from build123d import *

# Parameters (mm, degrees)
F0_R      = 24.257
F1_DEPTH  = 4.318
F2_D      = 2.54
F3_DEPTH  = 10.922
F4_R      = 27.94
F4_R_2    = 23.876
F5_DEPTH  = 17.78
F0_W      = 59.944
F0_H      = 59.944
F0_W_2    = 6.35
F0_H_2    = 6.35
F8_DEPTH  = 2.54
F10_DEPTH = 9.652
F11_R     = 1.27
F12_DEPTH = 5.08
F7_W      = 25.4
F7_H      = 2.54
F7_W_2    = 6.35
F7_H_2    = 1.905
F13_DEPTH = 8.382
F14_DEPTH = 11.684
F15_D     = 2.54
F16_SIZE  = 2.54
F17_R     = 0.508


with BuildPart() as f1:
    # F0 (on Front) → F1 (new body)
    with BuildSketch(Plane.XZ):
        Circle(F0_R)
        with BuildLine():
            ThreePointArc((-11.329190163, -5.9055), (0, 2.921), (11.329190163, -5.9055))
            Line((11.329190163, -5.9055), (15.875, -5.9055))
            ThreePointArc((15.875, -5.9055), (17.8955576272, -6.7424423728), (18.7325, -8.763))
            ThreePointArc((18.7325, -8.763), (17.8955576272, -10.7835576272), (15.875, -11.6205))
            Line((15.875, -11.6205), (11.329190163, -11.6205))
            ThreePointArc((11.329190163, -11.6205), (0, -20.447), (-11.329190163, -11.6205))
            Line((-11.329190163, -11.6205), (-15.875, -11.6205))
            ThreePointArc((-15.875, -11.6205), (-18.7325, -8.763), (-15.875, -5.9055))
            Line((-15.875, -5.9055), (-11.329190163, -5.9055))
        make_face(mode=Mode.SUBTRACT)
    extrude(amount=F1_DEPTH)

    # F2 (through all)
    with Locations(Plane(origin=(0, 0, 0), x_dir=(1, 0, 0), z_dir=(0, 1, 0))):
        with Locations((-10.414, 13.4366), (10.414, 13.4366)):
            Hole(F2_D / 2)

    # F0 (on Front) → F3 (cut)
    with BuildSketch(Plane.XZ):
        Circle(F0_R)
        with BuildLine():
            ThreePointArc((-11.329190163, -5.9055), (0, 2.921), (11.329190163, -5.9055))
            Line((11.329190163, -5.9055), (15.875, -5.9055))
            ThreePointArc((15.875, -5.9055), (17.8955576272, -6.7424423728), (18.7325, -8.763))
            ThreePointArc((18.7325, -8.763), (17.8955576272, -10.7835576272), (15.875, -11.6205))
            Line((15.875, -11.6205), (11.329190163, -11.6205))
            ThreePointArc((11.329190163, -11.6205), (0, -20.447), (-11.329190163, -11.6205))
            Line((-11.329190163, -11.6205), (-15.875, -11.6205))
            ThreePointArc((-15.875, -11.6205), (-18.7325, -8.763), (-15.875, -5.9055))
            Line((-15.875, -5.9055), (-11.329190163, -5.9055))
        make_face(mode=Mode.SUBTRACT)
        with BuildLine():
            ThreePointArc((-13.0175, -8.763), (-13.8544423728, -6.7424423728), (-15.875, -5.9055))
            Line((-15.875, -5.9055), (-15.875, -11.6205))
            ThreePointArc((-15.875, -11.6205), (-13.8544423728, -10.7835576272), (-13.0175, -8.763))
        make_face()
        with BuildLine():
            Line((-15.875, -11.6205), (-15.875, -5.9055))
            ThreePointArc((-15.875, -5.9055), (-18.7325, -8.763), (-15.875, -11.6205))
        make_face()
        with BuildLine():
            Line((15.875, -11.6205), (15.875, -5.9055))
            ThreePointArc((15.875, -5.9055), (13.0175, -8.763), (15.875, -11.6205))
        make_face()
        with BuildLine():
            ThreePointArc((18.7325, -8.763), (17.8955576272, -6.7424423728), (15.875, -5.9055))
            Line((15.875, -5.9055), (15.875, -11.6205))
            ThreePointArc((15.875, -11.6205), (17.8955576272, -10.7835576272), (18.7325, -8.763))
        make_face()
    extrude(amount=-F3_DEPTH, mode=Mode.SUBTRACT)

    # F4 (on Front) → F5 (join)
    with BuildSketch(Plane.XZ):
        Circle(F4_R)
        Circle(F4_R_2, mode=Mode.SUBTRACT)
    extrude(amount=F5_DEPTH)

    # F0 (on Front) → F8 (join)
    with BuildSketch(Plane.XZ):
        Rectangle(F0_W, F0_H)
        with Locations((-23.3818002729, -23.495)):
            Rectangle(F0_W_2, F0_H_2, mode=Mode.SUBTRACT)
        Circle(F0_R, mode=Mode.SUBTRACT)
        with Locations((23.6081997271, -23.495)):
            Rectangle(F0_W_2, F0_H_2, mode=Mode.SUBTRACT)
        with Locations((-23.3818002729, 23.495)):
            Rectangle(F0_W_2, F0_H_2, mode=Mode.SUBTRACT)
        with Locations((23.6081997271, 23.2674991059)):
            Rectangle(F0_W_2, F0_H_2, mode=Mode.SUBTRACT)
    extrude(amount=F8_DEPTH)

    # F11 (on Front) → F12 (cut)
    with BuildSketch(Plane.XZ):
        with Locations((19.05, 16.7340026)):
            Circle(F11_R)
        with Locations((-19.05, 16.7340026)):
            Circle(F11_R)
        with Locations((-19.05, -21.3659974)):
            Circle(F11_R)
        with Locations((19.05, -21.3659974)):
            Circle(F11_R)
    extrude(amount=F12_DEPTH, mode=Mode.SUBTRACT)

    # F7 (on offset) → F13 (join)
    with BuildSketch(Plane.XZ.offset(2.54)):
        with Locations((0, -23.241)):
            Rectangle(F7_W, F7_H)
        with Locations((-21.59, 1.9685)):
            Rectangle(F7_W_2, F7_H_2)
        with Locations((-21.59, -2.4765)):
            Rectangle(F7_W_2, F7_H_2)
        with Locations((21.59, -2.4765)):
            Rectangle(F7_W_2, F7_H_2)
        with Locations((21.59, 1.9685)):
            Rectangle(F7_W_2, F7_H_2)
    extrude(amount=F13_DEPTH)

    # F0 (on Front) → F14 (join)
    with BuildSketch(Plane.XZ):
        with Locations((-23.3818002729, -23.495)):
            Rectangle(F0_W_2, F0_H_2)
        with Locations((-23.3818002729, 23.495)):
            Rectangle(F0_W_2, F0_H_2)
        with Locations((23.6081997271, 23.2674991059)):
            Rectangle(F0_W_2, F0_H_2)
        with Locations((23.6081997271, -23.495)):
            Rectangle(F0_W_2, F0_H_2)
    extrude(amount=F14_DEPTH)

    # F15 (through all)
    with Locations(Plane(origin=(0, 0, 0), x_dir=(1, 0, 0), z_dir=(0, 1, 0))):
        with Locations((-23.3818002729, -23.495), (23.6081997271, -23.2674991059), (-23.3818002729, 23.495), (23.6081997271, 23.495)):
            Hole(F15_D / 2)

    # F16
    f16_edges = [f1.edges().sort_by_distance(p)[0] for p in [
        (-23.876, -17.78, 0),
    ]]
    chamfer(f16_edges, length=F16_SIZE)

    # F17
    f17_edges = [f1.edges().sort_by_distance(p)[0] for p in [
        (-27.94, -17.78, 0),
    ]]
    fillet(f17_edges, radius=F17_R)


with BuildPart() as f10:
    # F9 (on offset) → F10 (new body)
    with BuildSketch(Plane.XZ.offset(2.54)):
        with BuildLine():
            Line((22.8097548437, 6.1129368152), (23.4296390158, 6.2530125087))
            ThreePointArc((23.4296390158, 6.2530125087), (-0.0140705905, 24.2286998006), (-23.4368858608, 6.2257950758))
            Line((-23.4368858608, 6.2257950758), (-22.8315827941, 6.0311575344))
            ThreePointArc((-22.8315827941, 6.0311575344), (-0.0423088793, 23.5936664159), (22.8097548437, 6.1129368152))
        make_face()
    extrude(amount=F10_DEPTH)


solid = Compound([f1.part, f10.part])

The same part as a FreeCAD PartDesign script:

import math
import FreeCAD as App
import Part
import Sketcher
Q = App.Units.Quantity


def edges_at(feature, points):
    """Names of the edges that pass closest to the given points."""
    edges = feature.Shape.Edges
    near = lambda p: min(range(len(edges)), key=lambda i: edges[i].distToShape(Part.Vertex(*p))[0])
    return sorted({f"Edge{near(p) + 1}" for p in points})


def add_polygon(sketch, points):
    """Adds a closed chain of lines whose ends are joined by coincident constraints."""
    first, n = sketch.GeometryCount, len(points)
    for a, b in zip(points, points[1:] + points[:1]):
        sketch.addGeometry(Part.LineSegment(App.Vector(*a, 0), App.Vector(*b, 0)), False)
    for i in range(n):
        sketch.addConstraint(Sketcher.Constraint("Coincident", first + i, 2, first + (i + 1) % n, 1))

doc = App.newDocument("Part")
body = doc.addObject("PartDesign::Body", "Body")

sketch1 = doc.addObject("Sketcher::SketchObject", "Sketch")
body.addObject(sketch1)
sketch1.AttachmentSupport = (doc.XZ_Plane, [""])
sketch1.MapMode = "FlatFace"
sketch1.addGeometry([
    Part.Circle(App.Vector(0, 0, 0), App.Vector(0, 0, 1), 24.3),
    Part.LineSegment(App.Vector(-15.9, -5.9, 0), App.Vector(-11.3, -5.9, 0)),
    Part.ArcOfCircle(Part.Circle(App.Vector(0, -8.8, 0), App.Vector(0, 0, 1), 11.7), math.radians(14), math.radians(166)),
    Part.LineSegment(App.Vector(11.3, -5.9, 0), App.Vector(15.9, -5.9, 0)),
    Part.ArcOfCircle(Part.Circle(App.Vector(15.9, -8.8, 0), App.Vector(0, 0, 1), 2.9), math.radians(0), math.radians(90)),
    Part.ArcOfCircle(Part.Circle(App.Vector(15.9, -8.8, 0), App.Vector(0, 0, 1), 2.9), math.radians(-90), math.radians(0)),
    Part.LineSegment(App.Vector(15.9, -11.6, 0), App.Vector(11.3, -11.6, 0)),
    Part.ArcOfCircle(Part.Circle(App.Vector(0, -8.8, 0), App.Vector(0, 0, 1), 11.7), math.radians(-166), math.radians(-14)),
    Part.LineSegment(App.Vector(-11.3, -11.6, 0), App.Vector(-15.9, -11.6, 0)),
    Part.ArcOfCircle(Part.Circle(App.Vector(-15.9, -8.8, 0), App.Vector(0, 0, 1), 2.9), math.radians(90), math.radians(270)),
], False)
sketch1.addConstraint([
    Sketcher.Constraint("Coincident", 1, 2, 2, 2),
    Sketcher.Constraint("Coincident", 2, 1, 3, 1),
    Sketcher.Constraint("Tangent", 3, 2, 4, 2),
    Sketcher.Constraint("Tangent", 4, 1, 5, 2),
    Sketcher.Constraint("Tangent", 5, 1, 6, 1),
    Sketcher.Constraint("Coincident", 6, 2, 7, 2),
    Sketcher.Constraint("Coincident", 7, 1, 8, 1),
    Sketcher.Constraint("Tangent", 8, 2, 9, 2),
    Sketcher.Constraint("Tangent", 9, 1, 1, 1),
    Sketcher.Constraint("Horizontal", 1),
    Sketcher.Constraint("Horizontal", 3),
    Sketcher.Constraint("Horizontal", 6),
    Sketcher.Constraint("Horizontal", 8),
    Sketcher.Constraint("Coincident", 0, 3, -1, 1),
    Sketcher.Constraint("Coincident", 7, 3, 2, 3),
    Sketcher.Constraint("Equal", 4, 5),
    Sketcher.Constraint("Equal", 2, 7),
    Sketcher.Constraint("Equal", 5, 9),
    Sketcher.Constraint("Symmetric", 4, 3, 9, 3, -2),
    Sketcher.Constraint("PointOnObject", 2, 3, -2),
    Sketcher.Constraint("Horizontal", 2, 3, 4, 3),
    Sketcher.Constraint("Horizontal", 9, 3, 4, 1),
    Sketcher.Constraint("Diameter", 0, Q("1.91 in")),
    Sketcher.Constraint("Radius", 2, Q("0.46 in")),
    Sketcher.Constraint("Radius", 4, Q("0.1125 in")),
    Sketcher.Constraint("DistanceX", 9, 3, 4, 3, Q("1.25 in")),
    Sketcher.Constraint("DistanceY", 2, 3, -1, 1, Q("0.345 in")),
])
pad1 = doc.addObject("PartDesign::Pad", "Pad")
body.addObject(pad1)
pad1.Profile = sketch1
pad1.Length = Q("0.17 in")

sketch2 = doc.addObject("Sketcher::SketchObject", "Sketch001")
body.addObject(sketch2)
sketch2.AttachmentSupport = (doc.XZ_Plane, [""])
sketch2.MapMode = "FlatFace"
sketch2.addGeometry([
    Part.Circle(App.Vector(-10.4, -13.4, 0), App.Vector(0, 0, 1), 1.3),
    Part.Circle(App.Vector(10.4, -13.4, 0), App.Vector(0, 0, 1), 1.3),
], False)
sketch2.addConstraint([
    Sketcher.Constraint("Equal", 0, 1),
    Sketcher.Constraint("Symmetric", 0, 3, 1, 3, -2),
    Sketcher.Constraint("Diameter", 0, Q("0.1 in")),
    Sketcher.Constraint("DistanceX", 0, 3, -1, 1, Q("0.41 in")),
    Sketcher.Constraint("DistanceY", 0, 3, -1, 1, Q("0.529 in")),
])
doc.recompute()
hole = doc.addObject("PartDesign::Hole", "Hole")
body.addObject(hole)
hole.Profile = sketch2
hole.ThreadType = "None"
hole.Diameter = Q("0.1 in")
hole.DepthType = "ThroughAll"
hole.Reversed = True

sketch3 = doc.addObject("Sketcher::SketchObject", "Sketch002")
body.addObject(sketch3)
sketch3.AttachmentSupport = (doc.XZ_Plane, [""])
sketch3.MapMode = "FlatFace"
sketch3.addGeometry([
    Part.Circle(App.Vector(0, 0, 0), App.Vector(0, 0, 1), 24.3),
    Part.LineSegment(App.Vector(-15.9, -5.9, 0), App.Vector(-11.3, -5.9, 0)),
    Part.ArcOfCircle(Part.Circle(App.Vector(0, -8.8, 0), App.Vector(0, 0, 1), 11.7), math.radians(14), math.radians(166)),
    Part.LineSegment(App.Vector(11.3, -5.9, 0), App.Vector(15.9, -5.9, 0)),
    Part.ArcOfCircle(Part.Circle(App.Vector(15.9, -8.8, 0), App.Vector(0, 0, 1), 2.9), math.radians(90), math.radians(270)),
    Part.LineSegment(App.Vector(15.9, -11.6, 0), App.Vector(11.3, -11.6, 0)),
    Part.ArcOfCircle(Part.Circle(App.Vector(0, -8.8, 0), App.Vector(0, 0, 1), 11.7), math.radians(-166), math.radians(-14)),
    Part.LineSegment(App.Vector(-11.3, -11.6, 0), App.Vector(-15.9, -11.6, 0)),
    Part.ArcOfCircle(Part.Circle(App.Vector(-15.9, -8.8, 0), App.Vector(0, 0, 1), 2.9), math.radians(-90), math.radians(0)),
    Part.ArcOfCircle(Part.Circle(App.Vector(-15.9, -8.8, 0), App.Vector(0, 0, 1), 2.9), math.radians(0), math.radians(90)),
], False)
sketch3.addConstraint([
    Sketcher.Constraint("Coincident", 1, 2, 2, 2),
    Sketcher.Constraint("Coincident", 2, 1, 3, 1),
    Sketcher.Constraint("Tangent", 3, 2, 4, 1),
    Sketcher.Constraint("Tangent", 4, 2, 5, 1),
    Sketcher.Constraint("Coincident", 5, 2, 6, 2),
    Sketcher.Constraint("Coincident", 6, 1, 7, 1),
    Sketcher.Constraint("Tangent", 7, 2, 8, 1),
    Sketcher.Constraint("Tangent", 8, 2, 9, 1),
    Sketcher.Constraint("Tangent", 9, 2, 1, 1),
    Sketcher.Constraint("Horizontal", 1),
    Sketcher.Constraint("Horizontal", 3),
    Sketcher.Constraint("Horizontal", 5),
    Sketcher.Constraint("Horizontal", 7),
    Sketcher.Constraint("Coincident", 0, 3, -1, 1),
    Sketcher.Constraint("Coincident", 6, 3, 2, 3),
    Sketcher.Constraint("Equal", 2, 6),
    Sketcher.Constraint("Equal", 4, 8),
    Sketcher.Constraint("Equal", 8, 9),
    Sketcher.Constraint("Symmetric", 4, 3, 8, 3, -2),
    Sketcher.Constraint("PointOnObject", 2, 3, -2),
    Sketcher.Constraint("Horizontal", 2, 3, 4, 3),
    Sketcher.Constraint("Horizontal", 9, 3, 8, 2),
    Sketcher.Constraint("Diameter", 0, Q("1.91 in")),
    Sketcher.Constraint("Radius", 2, Q("0.46 in")),
    Sketcher.Constraint("Radius", 4, Q("0.1125 in")),
    Sketcher.Constraint("DistanceX", 8, 3, 4, 3, Q("1.25 in")),
    Sketcher.Constraint("DistanceY", 2, 3, -1, 1, Q("0.345 in")),
])
pocket1 = doc.addObject("PartDesign::Pocket", "Pocket")
body.addObject(pocket1)
pocket1.Profile = sketch3
pocket1.Length = Q("0.43 in")

sketch4 = doc.addObject("Sketcher::SketchObject", "Sketch003")
body.addObject(sketch4)
sketch4.AttachmentSupport = (doc.XZ_Plane, [""])
sketch4.MapMode = "FlatFace"
sketch4.addGeometry([
    Part.Circle(App.Vector(0, 0, 0), App.Vector(0, 0, 1), 28),
    Part.Circle(App.Vector(0, 0, 0), App.Vector(0, 0, 1), 24),
], False)
sketch4.addConstraint([
    Sketcher.Constraint("Coincident", 0, 3, -1, 1),
    Sketcher.Constraint("Coincident", 1, 3, -1, 1),
    Sketcher.Constraint("Diameter", 0, Q("2.2 in")),
    Sketcher.Constraint("Diameter", 1, Q("1.88 in")),
])
pad2 = doc.addObject("PartDesign::Pad", "Pad001")
body.addObject(pad2)
pad2.Profile = sketch4
pad2.Length = Q("0.7 in")

sketch5 = doc.addObject("Sketcher::SketchObject", "Sketch004")
body.addObject(sketch5)
sketch5.AttachmentSupport = (doc.XZ_Plane, [""])
sketch5.MapMode = "FlatFace"
add_polygon(sketch5, [(-30, 30), (-30, -30), (30, -30), (30, 30)])
add_polygon(sketch5, [(-20, -27), (-27, -27), (-27, -20), (-20, -20)])
sketch5.addGeometry(Part.Circle(App.Vector(0, 0, 0), App.Vector(0, 0, 1), 24), False)
add_polygon(sketch5, [(27, -27), (20, -27), (20, -20), (27, -20)])
add_polygon(sketch5, [(-20, 20), (-27, 20), (-27, 27), (-20, 27)])
add_polygon(sketch5, [(27, 20), (20, 20), (20, 26), (27, 26)])
sketch5.addConstraint([
    Sketcher.Constraint("Vertical", 0),
    Sketcher.Constraint("Horizontal", 1),
    Sketcher.Constraint("Vertical", 2),
    Sketcher.Constraint("Horizontal", 3),
    Sketcher.Constraint("Horizontal", 4),
    Sketcher.Constraint("Vertical", 5),
    Sketcher.Constraint("Horizontal", 6),
    Sketcher.Constraint("Vertical", 7),
    Sketcher.Constraint("Horizontal", 9),
    Sketcher.Constraint("Vertical", 10),
    Sketcher.Constraint("Horizontal", 11),
    Sketcher.Constraint("Vertical", 12),
    Sketcher.Constraint("Horizontal", 13),
    Sketcher.Constraint("Vertical", 14),
    Sketcher.Constraint("Horizontal", 15),
    Sketcher.Constraint("Vertical", 16),
    Sketcher.Constraint("Horizontal", 17),
    Sketcher.Constraint("Vertical", 18),
    Sketcher.Constraint("Horizontal", 19),
    Sketcher.Constraint("Vertical", 20),
    Sketcher.Constraint("Coincident", 8, 3, -1, 1),
    Sketcher.Constraint("Symmetric", 0, 2, 2, 2, -1, 1),
    Sketcher.Constraint("Symmetric", 5, 2, 13, 2, -1),
    Sketcher.Constraint("Symmetric", 7, 2, 15, 2, -1),
    Sketcher.Constraint("Horizontal", 7, 2, 9, 2),
    Sketcher.Constraint("Horizontal", 6, 2, 10, 2),
    Sketcher.Constraint("Vertical", 10, 2, 17, 2),
    Sketcher.Constraint("Vertical", 12, 2, 19, 2),
    Sketcher.Constraint("Equal", 6, 9),
    Sketcher.Constraint("Equal", 3, 0),
    Sketcher.Constraint("Equal", 19, 5),
    Sketcher.Constraint("Equal", 16, 18),
    Sketcher.Constraint("Diameter", 8, Q("1.91 in")),
    Sketcher.Constraint("DistanceX", 1, 1, 1, 2, Q("2.36 in")),
    Sketcher.Constraint("DistanceX", 4, 2, 4, 1, Q("0.25 in")),
    Sketcher.Constraint("DistanceY", 5, 2, -1, 1, Q("0.8 in")),
    Sketcher.Constraint("DistanceX", 7, 2, 9, 2, Q("1.6 in")),
    Sketcher.Constraint("DistanceX", 4, 2, -1, 1, 26.5568),
    Sketcher.Constraint("DistanceY", -1, 1, 17, 2, 20.092499),
])
pad3 = doc.addObject("PartDesign::Pad", "Pad002")
body.addObject(pad3)
pad3.Profile = sketch5
pad3.Length = Q("0.1 in")

sketch6 = doc.addObject("Sketcher::SketchObject", "Sketch005")
body.addObject(sketch6)
sketch6.AttachmentSupport = (doc.XZ_Plane, [""])
sketch6.MapMode = "FlatFace"
sketch6.addGeometry([
    Part.Circle(App.Vector(19.1, 16.7, 0), App.Vector(0, 0, 1), 1.3),
    Part.Circle(App.Vector(-19.1, 16.7, 0), App.Vector(0, 0, 1), 1.3),
    Part.Circle(App.Vector(-19.1, -21.4, 0), App.Vector(0, 0, 1), 1.3),
    Part.Circle(App.Vector(19.1, -21.4, 0), App.Vector(0, 0, 1), 1.3),
], False)
sketch6.addConstraint([
    Sketcher.Constraint("Equal", 0, 1),
    Sketcher.Constraint("Equal", 1, 2),
    Sketcher.Constraint("Equal", 2, 3),
    Sketcher.Constraint("Symmetric", 0, 3, 1, 3, -2),
    Sketcher.Constraint("Symmetric", 2, 3, 3, 3, -2),
    Sketcher.Constraint("Vertical", 1, 3, 2, 3),
    Sketcher.Constraint("Diameter", 0, Q("0.1 in")),
    Sketcher.Constraint("DistanceX", 1, 3, 0, 3, Q("1.5 in")),
    Sketcher.Constraint("DistanceY", 2, 3, 1, 3, Q("1.5 in")),
    Sketcher.Constraint("DistanceY", -1, 1, 0, 3, 16.734003),
])
pocket2 = doc.addObject("PartDesign::Pocket", "Pocket001")
body.addObject(pocket2)
pocket2.Profile = sketch6
pocket2.Length = Q("0.2 in")
pocket2.Reversed = True

sketch7 = doc.addObject("Sketcher::SketchObject", "Sketch006")
body.addObject(sketch7)
sketch7.AttachmentSupport = (doc.XZ_Plane, [""])
sketch7.MapMode = "FlatFace"
sketch7.AttachmentOffset = App.Placement(App.Vector(0, 0, 0.1 * 25.4), App.Rotation())
add_polygon(sketch7, [(-12.7, -22), (-12.7, -24.5), (12.7, -24.5), (12.7, -22)])
add_polygon(sketch7, [(-24.8, 2.9), (-24.8, 1), (-18.4, 1), (-18.4, 2.9)])
add_polygon(sketch7, [(-24.8, -1.5), (-24.8, -3.4), (-18.4, -3.4), (-18.4, -1.5)])
add_polygon(sketch7, [(18.4, -1.5), (18.4, -3.4), (24.8, -3.4), (24.8, -1.5)])
add_polygon(sketch7, [(18.4, 2.9), (18.4, 1), (24.8, 1), (24.8, 2.9)])
sketch7.addConstraint([
    Sketcher.Constraint("Vertical", 0),
    Sketcher.Constraint("Horizontal", 1),
    Sketcher.Constraint("Vertical", 2),
    Sketcher.Constraint("Horizontal", 3),
    Sketcher.Constraint("Vertical", 4),
    Sketcher.Constraint("Horizontal", 5),
    Sketcher.Constraint("Vertical", 6),
    Sketcher.Constraint("Horizontal", 7),
    Sketcher.Constraint("Vertical", 8),
    Sketcher.Constraint("Horizontal", 9),
    Sketcher.Constraint("Vertical", 10),
    Sketcher.Constraint("Horizontal", 11),
    Sketcher.Constraint("Vertical", 12),
    Sketcher.Constraint("Horizontal", 13),
    Sketcher.Constraint("Vertical", 14),
    Sketcher.Constraint("Horizontal", 15),
    Sketcher.Constraint("Vertical", 16),
    Sketcher.Constraint("Horizontal", 17),
    Sketcher.Constraint("Vertical", 18),
    Sketcher.Constraint("Horizontal", 19),
    Sketcher.Constraint("Symmetric", 9, 2, 12, 2, -2),
    Sketcher.Constraint("Symmetric", 11, 2, 14, 2, -2),
    Sketcher.Constraint("Symmetric", 5, 2, 16, 2, -2),
    Sketcher.Constraint("Symmetric", 7, 2, 18, 2, -2),
    Sketcher.Constraint("Vertical", 7, 2, 8, 2),
    Sketcher.Constraint("Vertical", 6, 2, 9, 2),
    Sketcher.Constraint("Equal", 6, 8),
    Sketcher.Constraint("DistanceX", 1, 1, 1, 2, Q("1 in")),
    Sketcher.Constraint("DistanceY", 0, 2, 0, 1, Q("0.1 in")),
    Sketcher.Constraint("DistanceX", 5, 1, 5, 2, Q("0.25 in")),
    Sketcher.Constraint("DistanceX", 0, 2, -1, 1, Q("0.5 in")),
    Sketcher.Constraint("DistanceY", 10, 2, 5, 2, Q("0.1 in")),
    Sketcher.Constraint("DistanceY", 4, 2, 4, 1, Q("0.075 in")),
    Sketcher.Constraint("DistanceY", -1, 1, 4, 2, Q("0.04 in")),
    Sketcher.Constraint("DistanceY", 3, 2, 6, 2, Q("0.98 in")),
    Sketcher.Constraint("DistanceX", 9, 2, 12, 2, Q("1.45 in")),
])
pad4 = doc.addObject("PartDesign::Pad", "Pad003")
body.addObject(pad4)
pad4.Profile = sketch7
pad4.Length = Q("0.33 in")

sketch8 = doc.addObject("Sketcher::SketchObject", "Sketch007")
body.addObject(sketch8)
sketch8.AttachmentSupport = (doc.XZ_Plane, [""])
sketch8.MapMode = "FlatFace"
add_polygon(sketch8, [(-27, -20), (-27, -27), (-20, -27), (-20, -20)])
add_polygon(sketch8, [(-27, 27), (-27, 20), (-20, 20), (-20, 27)])
add_polygon(sketch8, [(20, 26), (20, 20), (27, 20), (27, 26)])
add_polygon(sketch8, [(20, -20), (20, -27), (27, -27), (27, -20)])
sketch8.addConstraint([
    Sketcher.Constraint("Vertical", 0),
    Sketcher.Constraint("Horizontal", 1),
    Sketcher.Constraint("Vertical", 2),
    Sketcher.Constraint("Horizontal", 3),
    Sketcher.Constraint("Vertical", 4),
    Sketcher.Constraint("Horizontal", 5),
    Sketcher.Constraint("Vertical", 6),
    Sketcher.Constraint("Horizontal", 7),
    Sketcher.Constraint("Vertical", 8),
    Sketcher.Constraint("Horizontal", 9),
    Sketcher.Constraint("Vertical", 10),
    Sketcher.Constraint("Horizontal", 11),
    Sketcher.Constraint("Vertical", 12),
    Sketcher.Constraint("Horizontal", 13),
    Sketcher.Constraint("Vertical", 14),
    Sketcher.Constraint("Horizontal", 15),
    Sketcher.Constraint("Symmetric", 3, 2, 4, 2, -1),
    Sketcher.Constraint("Symmetric", 1, 2, 6, 2, -1),
    Sketcher.Constraint("Horizontal", 1, 2, 12, 2),
    Sketcher.Constraint("Horizontal", 3, 2, 14, 2),
    Sketcher.Constraint("Vertical", 11, 2, 12, 2),
    Sketcher.Constraint("Vertical", 10, 2, 13, 2),
    Sketcher.Constraint("Equal", 7, 9),
    Sketcher.Constraint("Equal", 15, 0),
    Sketcher.Constraint("Equal", 6, 8),
    Sketcher.Constraint("DistanceX", 1, 1, 1, 2, Q("0.25 in")),
    Sketcher.Constraint("DistanceY", 2, 2, -1, 1, Q("0.8 in")),
    Sketcher.Constraint("DistanceX", 5, 2, 8, 2, Q("1.6 in")),
    Sketcher.Constraint("DistanceX", 0, 2, -1, 1, 26.5568),
    Sketcher.Constraint("DistanceY", -1, 1, 8, 2, 20.092499),
])
pad5 = doc.addObject("PartDesign::Pad", "Pad004")
body.addObject(pad5)
pad5.Profile = sketch8
pad5.Length = Q("0.46 in")

sketch9 = doc.addObject("Sketcher::SketchObject", "Sketch008")
body.addObject(sketch9)
sketch9.AttachmentSupport = (doc.XZ_Plane, [""])
sketch9.MapMode = "FlatFace"
sketch9.addGeometry([
    Part.Circle(App.Vector(-23.4, 23.5, 0), App.Vector(0, 0, 1), 1.3),
    Part.Circle(App.Vector(23.6, 23.3, 0), App.Vector(0, 0, 1), 1.3),
    Part.Circle(App.Vector(-23.4, -23.5, 0), App.Vector(0, 0, 1), 1.3),
    Part.Circle(App.Vector(23.6, -23.5, 0), App.Vector(0, 0, 1), 1.3),
], False)
sketch9.addConstraint([
    Sketcher.Constraint("Equal", 0, 1),
    Sketcher.Constraint("Equal", 1, 2),
    Sketcher.Constraint("Equal", 2, 3),
    Sketcher.Constraint("Symmetric", 0, 3, 2, 3, -1),
    Sketcher.Constraint("Horizontal", 2, 3, 3, 3),
    Sketcher.Constraint("Vertical", 1, 3, 3, 3),
    Sketcher.Constraint("Diameter", 0, Q("0.1 in")),
    Sketcher.Constraint("DistanceX", 0, 3, 1, 3, Q("1.85 in")),
    Sketcher.Constraint("DistanceY", 2, 3, 0, 3, Q("1.85 in")),
    Sketcher.Constraint("DistanceX", 0, 3, -1, 1, 23.3818),
    Sketcher.Constraint("DistanceY", -1, 1, 1, 3, 23.267499),
])
doc.recompute()
hole2 = doc.addObject("PartDesign::Hole", "Hole001")
body.addObject(hole2)
hole2.Profile = sketch9
hole2.ThreadType = "None"
hole2.Diameter = Q("0.1 in")
hole2.DepthType = "ThroughAll"
hole2.Reversed = True
doc.recompute()

chamfer = doc.addObject("PartDesign::Chamfer", "Chamfer")
body.addObject(chamfer)
chamfer.Base = (hole2, edges_at(hole2, [(-23.876, -17.78, 0)]))
chamfer.Size = Q("0.1 in")
doc.recompute()

fillet = doc.addObject("PartDesign::Fillet", "Fillet")
body.addObject(fillet)
fillet.Base = (chamfer, edges_at(chamfer, [(-27.94, -17.78, 0)]))
fillet.Radius = Q("0.02 in")
body2 = doc.addObject("PartDesign::Body", "Body001")

sketch10 = doc.addObject("Sketcher::SketchObject", "Sketch009")
body2.addObject(sketch10)
sketch10.AttachmentSupport = (doc.getObject("XZ_Plane001"), [""])
sketch10.MapMode = "FlatFace"
sketch10.AttachmentOffset = App.Placement(App.Vector(0, 0, 0.1 * 25.4), App.Rotation())
sketch10.addGeometry([
    Part.LineSegment(App.Vector(22.8, 6.1, 0), App.Vector(23.4, 6.3, 0)),
    Part.ArcOfCircle(Part.Circle(App.Vector(0, 0, 0), App.Vector(0, 0, 1), 24.3), math.radians(15), math.radians(165)),
    Part.LineSegment(App.Vector(-23.4, 6.2, 0), App.Vector(-22.8, 6, 0)),
    Part.ArcOfCircle(Part.Circle(App.Vector(0, 0, 0), App.Vector(0, 0, 1), 23.6), math.radians(15), math.radians(165)),
], False)
sketch10.addConstraint([
    Sketcher.Constraint("Coincident", 0, 2, 1, 1),
    Sketcher.Constraint("Coincident", 1, 2, 2, 1),
    Sketcher.Constraint("Coincident", 2, 2, 3, 2),
    Sketcher.Constraint("Coincident", 3, 1, 0, 1),
    Sketcher.Constraint("Coincident", 3, 3, 1, 3),
    Sketcher.Constraint("Radius", 3, Q("0.93 in")),
    Sketcher.Constraint("Radius", 1, Q("0.955 in")),
    Sketcher.Constraint("DistanceX", 2, 2, 1, 3, 22.831599),
    Sketcher.Constraint("DistanceX", -1, 1, 0, 2, 23.429639),
    Sketcher.Constraint("DistanceY", 1, 3, 0, 2, 6.281309),
    Sketcher.Constraint("DistanceY", 1, 3, 1, 2, 6.254091),
    Sketcher.Constraint("DistanceX", 1, 3, 3, 1, 22.809738),
    Sketcher.Constraint("DistanceY", 1, 3, -1, 1, 0.028296),
])
pad6 = doc.addObject("PartDesign::Pad", "Pad005")
body2.addObject(pad6)
pad6.Profile = sketch10
pad6.Length = Q("0.38 in")

doc.recompute()
